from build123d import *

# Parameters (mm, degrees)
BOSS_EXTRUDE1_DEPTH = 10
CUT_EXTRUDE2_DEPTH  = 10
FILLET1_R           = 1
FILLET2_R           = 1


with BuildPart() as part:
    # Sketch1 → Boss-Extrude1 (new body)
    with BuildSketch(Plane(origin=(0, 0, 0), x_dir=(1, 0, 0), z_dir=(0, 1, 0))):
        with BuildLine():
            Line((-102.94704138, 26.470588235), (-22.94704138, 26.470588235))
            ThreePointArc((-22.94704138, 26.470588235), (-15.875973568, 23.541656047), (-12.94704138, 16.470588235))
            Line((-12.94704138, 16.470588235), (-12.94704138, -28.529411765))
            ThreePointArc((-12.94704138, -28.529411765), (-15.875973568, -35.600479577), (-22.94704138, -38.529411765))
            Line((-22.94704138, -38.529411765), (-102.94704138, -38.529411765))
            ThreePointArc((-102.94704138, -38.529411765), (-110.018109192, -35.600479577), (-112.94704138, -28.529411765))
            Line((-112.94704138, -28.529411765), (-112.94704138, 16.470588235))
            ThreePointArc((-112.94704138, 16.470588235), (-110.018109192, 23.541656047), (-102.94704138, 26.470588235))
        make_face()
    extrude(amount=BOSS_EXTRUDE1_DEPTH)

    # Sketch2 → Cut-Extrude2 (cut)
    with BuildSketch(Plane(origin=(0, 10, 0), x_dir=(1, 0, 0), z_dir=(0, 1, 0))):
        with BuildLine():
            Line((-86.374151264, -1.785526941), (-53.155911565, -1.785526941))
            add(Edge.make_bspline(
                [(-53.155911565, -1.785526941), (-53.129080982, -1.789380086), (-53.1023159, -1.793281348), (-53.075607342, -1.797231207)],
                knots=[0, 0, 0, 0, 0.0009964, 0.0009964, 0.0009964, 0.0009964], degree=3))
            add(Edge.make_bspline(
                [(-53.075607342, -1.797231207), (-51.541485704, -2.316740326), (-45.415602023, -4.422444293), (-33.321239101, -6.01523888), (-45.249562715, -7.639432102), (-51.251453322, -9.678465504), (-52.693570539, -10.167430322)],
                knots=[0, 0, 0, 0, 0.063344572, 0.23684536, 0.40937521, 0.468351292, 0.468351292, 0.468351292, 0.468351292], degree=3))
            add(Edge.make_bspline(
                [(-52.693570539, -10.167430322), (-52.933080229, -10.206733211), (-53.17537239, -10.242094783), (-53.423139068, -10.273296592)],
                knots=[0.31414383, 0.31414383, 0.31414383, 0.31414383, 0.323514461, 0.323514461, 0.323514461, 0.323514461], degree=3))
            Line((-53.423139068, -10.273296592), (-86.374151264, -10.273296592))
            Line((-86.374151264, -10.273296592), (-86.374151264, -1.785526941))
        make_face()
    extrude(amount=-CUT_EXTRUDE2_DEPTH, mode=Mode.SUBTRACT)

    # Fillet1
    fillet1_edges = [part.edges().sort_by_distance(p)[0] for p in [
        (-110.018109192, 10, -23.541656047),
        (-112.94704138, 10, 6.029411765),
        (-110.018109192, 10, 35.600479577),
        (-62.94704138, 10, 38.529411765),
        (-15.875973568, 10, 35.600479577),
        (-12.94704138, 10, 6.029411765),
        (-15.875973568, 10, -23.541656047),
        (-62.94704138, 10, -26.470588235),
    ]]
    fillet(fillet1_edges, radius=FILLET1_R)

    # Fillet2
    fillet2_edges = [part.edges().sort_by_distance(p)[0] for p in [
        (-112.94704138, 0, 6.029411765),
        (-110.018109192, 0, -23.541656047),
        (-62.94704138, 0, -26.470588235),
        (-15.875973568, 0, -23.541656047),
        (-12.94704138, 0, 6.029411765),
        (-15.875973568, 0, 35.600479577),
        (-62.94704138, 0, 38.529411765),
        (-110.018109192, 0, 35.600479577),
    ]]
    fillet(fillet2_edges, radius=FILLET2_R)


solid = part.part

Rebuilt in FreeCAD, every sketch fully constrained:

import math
import FreeCAD as App
import Part
import Sketcher

V = App.Vector
Q = App.Units.Quantity


def edges_at(feature, points):
    """Names of the edges that pass closest to the given points."""
    edges = feature.Shape.Edges
    near = lambda p: min(range(len(edges)), key=lambda i: edges[i].distToShape(Part.Vertex(*p))[0])
    return sorted({f"Edge{near(p) + 1}" for p in points})

doc = App.newDocument("Part")
body = doc.addObject("PartDesign::Body", "Body")

# Sketch on XZ plane
sketch1 = body.newObject("Sketcher::SketchObject", "Sketch")
sketch1.AttachmentSupport = (doc.getObject("XZ_Plane"), [""])
sketch1.MapMode = "FlatFace"
sketch1.addGeometry(Part.LineSegment(V(-23, -26, 0), V(-103, -26, 0)), False)
sketch1.addGeometry(Part.ArcOfCircle(Part.Circle(V(-103, -16, 0), V(0, 0, 1), 10), math.radians(180), math.radians(270)), False)
sketch1.addGeometry(Part.LineSegment(V(-113, -16, 0), V(-113, 29, 0)), False)
sketch1.addGeometry(Part.ArcOfCircle(Part.Circle(V(-103, 29, 0), V(0, 0, 1), 10), math.radians(90), math.radians(180)), False)
sketch1.addGeometry(Part.LineSegment(V(-103, 39, 0), V(-23, 39, 0)), False)
sketch1.addGeometry(Part.ArcOfCircle(Part.Circle(V(-23, 29, 0), V(0, 0, 1), 10), math.radians(0), math.radians(90)), False)
sketch1.addGeometry(Part.LineSegment(V(-13, 29, 0), V(-13, -16, 0)), False)
sketch1.addGeometry(Part.ArcOfCircle(Part.Circle(V(-23, -16, 0), V(0, 0, 1), 10), math.radians(-90), math.radians(0)), False)
sketch1.addConstraint(Sketcher.Constraint("Tangent", 0, 2, 1, 2))
sketch1.addConstraint(Sketcher.Constraint("Tangent", 1, 1, 2, 1))
sketch1.addConstraint(Sketcher.Constraint("Tangent", 2, 2, 3, 2))
sketch1.addConstraint(Sketcher.Constraint("Tangent", 3, 1, 4, 1))
sketch1.addConstraint(Sketcher.Constraint("Tangent", 4, 2, 5, 2))
sketch1.addConstraint(Sketcher.Constraint("Tangent", 5, 1, 6, 1))
sketch1.addConstraint(Sketcher.Constraint("Tangent", 6, 2, 7, 2))
sketch1.addConstraint(Sketcher.Constraint("Tangent", 7, 1, 0, 1))
sketch1.addConstraint(Sketcher.Constraint("Horizontal", 0))
sketch1.addConstraint(Sketcher.Constraint("Vertical", 2))
sketch1.addConstraint(Sketcher.Constraint("Horizontal", 4))
sketch1.addConstraint(Sketcher.Constraint("Vertical", 6))
sketch1.addConstraint(Sketcher.Constraint("Equal", 1, 3))
sketch1.addConstraint(Sketcher.Constraint("Equal", 3, 5))
sketch1.addConstraint(Sketcher.Constraint("Equal", 5, 7))
sketch1.addConstraint(Sketcher.Constraint("Radius", 1, Q("10 mm")))
sketch1.addConstraint(Sketcher.Constraint("DistanceX", 0, 2, 0, 1, Q("80 mm")))
sketch1.addConstraint(Sketcher.Constraint("DistanceY", 2, 1, 2, 2, Q("45 mm")))
sketch1.addConstraint(Sketcher.Constraint("DistanceX", 1, 3, -1, 1, Q("102.947041 mm")))
sketch1.addConstraint(Sketcher.Constraint("DistanceY", 1, 3, -1, 1, Q("16.470588 mm")))
pad1 = body.newObject("PartDesign::Pad", "Pad")
pad1.Profile = sketch1
pad1.Length = 10
pad1.Reversed = True

# Sketch on XZ plane
sketch2 = body.newObject("Sketcher::SketchObject", "Sketch001")
sketch2.AttachmentSupport = (doc.getObject("XZ_Plane"), [""])
sketch2.MapMode = "FlatFace"
sketch2.AttachmentOffset = App.Placement(V(0, 0, -10), App.Rotation())
sketch2.addGeometry(Part.LineSegment(V(-53.155912, 1.785527, 0), V(-86.374151, 1.785527, 0)), False)
sketch2.addGeometry(Part.LineSegment(V(-86.374151, 1.785527, 0), V(-86.374151, 10.273297, 0)), False)
sketch2.addGeometry(Part.LineSegment(V(-86.374151, 10.273297, 0), V(-53.423139, 10.273297, 0)), False)
sketch2.addGeometry(Part.BSplineCurve([V(-52.693571, 10.16743, 0), V(-52.93308, 10.206733, 0), V(-53.175372, 10.242095, 0), V(-53.423139, 10.273297, 0)], [4, 4], [0.31414383, 0.323514461], False, 3, [1, 1, 1, 1], False), False)
sketch2.addGeometry(Part.BSplineCurve([V(-53.075607, 1.797231, 0), V(-51.541486, 2.31674, 0), V(-45.415602, 4.422444, 0), V(-33.321239, 6.015239, 0), V(-45.249563, 7.639432, 0), V(-51.251453, 9.678466, 0), V(-52.693571, 10.16743, 0)], [4, 1, 1, 1, 4], [0, 0.063344572, 0.23684536, 0.40937521, 0.468351292], False, 3, [1, 1, 1, 1, 1, 1, 1], False), False)
sketch2.addGeometry(Part.BSplineCurve([V(-53.155912, 1.785527, 0), V(-53.129081, 1.78938, 0), V(-53.102316, 1.793281, 0), V(-53.075607, 1.797231, 0)], [4, 4], [0, 0.0009964], False, 3, [1, 1, 1, 1], False), False)
sketch2.addConstraint(Sketcher.Constraint("Block", 3))
sketch2.addConstraint(Sketcher.Constraint("Block", 4))
sketch2.addConstraint(Sketcher.Constraint("Block", 5))
sketch2.addConstraint(Sketcher.Constraint("Coincident", 0, 2, 1, 1))
sketch2.addConstraint(Sketcher.Constraint("Coincident", 1, 2, 2, 1))
sketch2.addConstraint(Sketcher.Constraint("Coincident", 2, 2, 3, 2))
sketch2.addConstraint(Sketcher.Constraint("Coincident", 5, 1, 0, 1))
sketch2.addConstraint(Sketcher.Constraint("Horizontal", 0))
sketch2.addConstraint(Sketcher.Constraint("Vertical", 1))
sketch2.addConstraint(Sketcher.Constraint("Horizontal", 2))
sketch2.addConstraint(Sketcher.Constraint("DistanceX", 0, 2, 0, 1, Q("33.21824 mm")))
pocket1 = body.newObject("PartDesign::Pocket", "Pocket")
pocket1.Profile = sketch2
pocket1.Length = 10
pocket1.Reversed = True
doc.recompute()

fillet = body.newObject("PartDesign::Fillet", "Fillet")
fillet.Base = (pocket1, edges_at(pocket1, [
    (-110.018, 10, -23.542),
    (-112.947, 10, 6.029),
    (-110.018, 10, 35.6),
    (-62.947, 10, 38.529),
    (-15.876, 10, 35.6),
    (-12.947, 10, 6.029),
    (-15.876, 10, -23.542),
    (-62.947, 10, -26.471),
]))
fillet.Radius = 1
doc.recompute()

fillet2 = body.newObject("PartDesign::Fillet", "Fillet001")
fillet2.Base = (fillet, edges_at(fillet, [
    (-112.947, 0, 6.029),
    (-110.018, 0, -23.542),
    (-62.947, 0, -26.471),
    (-15.876, 0, -23.542),
    (-12.947, 0, 6.029),
    (-15.876, 0, 35.6),
    (-62.947, 0, 38.529),
    (-110.018, 0, 35.6),
]))
fillet2.Radius = 1

doc.recompute()
